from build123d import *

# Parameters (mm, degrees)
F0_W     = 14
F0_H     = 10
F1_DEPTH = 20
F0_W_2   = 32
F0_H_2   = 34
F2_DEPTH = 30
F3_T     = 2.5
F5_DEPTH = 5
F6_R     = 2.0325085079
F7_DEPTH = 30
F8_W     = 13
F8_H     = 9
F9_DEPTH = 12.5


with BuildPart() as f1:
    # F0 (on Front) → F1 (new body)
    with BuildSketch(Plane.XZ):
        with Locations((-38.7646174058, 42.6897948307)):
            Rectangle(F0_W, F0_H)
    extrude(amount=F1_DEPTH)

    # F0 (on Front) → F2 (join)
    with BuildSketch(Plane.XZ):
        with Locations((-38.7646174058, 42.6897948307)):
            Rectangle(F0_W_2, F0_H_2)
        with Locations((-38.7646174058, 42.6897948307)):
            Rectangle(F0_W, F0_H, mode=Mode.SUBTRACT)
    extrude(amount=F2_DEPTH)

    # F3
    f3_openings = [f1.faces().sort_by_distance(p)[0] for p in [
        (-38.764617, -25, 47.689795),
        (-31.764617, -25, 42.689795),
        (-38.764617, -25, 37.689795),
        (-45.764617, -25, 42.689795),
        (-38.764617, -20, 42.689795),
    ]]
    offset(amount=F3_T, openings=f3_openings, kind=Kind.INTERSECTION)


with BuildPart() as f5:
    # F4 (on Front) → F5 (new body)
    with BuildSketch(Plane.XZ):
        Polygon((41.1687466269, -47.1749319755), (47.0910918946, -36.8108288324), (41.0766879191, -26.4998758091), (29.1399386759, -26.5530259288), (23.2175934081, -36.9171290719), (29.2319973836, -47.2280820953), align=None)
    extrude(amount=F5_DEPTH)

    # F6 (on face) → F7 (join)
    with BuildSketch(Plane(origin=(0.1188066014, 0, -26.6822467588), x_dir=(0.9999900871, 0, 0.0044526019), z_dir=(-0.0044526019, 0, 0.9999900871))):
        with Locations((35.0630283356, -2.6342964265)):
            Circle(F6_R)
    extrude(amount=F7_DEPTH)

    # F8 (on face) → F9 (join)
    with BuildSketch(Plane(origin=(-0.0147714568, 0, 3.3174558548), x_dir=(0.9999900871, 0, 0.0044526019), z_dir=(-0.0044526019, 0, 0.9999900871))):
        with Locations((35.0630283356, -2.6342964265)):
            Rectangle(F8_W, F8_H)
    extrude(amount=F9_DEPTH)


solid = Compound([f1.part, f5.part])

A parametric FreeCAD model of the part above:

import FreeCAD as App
import Part
import Sketcher
from FreeCAD import Vector
Q = App.Units.Quantity


def faces_at(feature, points):
    """Names of the faces that lie closest to the given points."""
    faces = feature.Shape.Faces
    near = lambda p: min(range(len(faces)), key=lambda i: faces[i].distToShape(Part.Vertex(*p))[0])
    return sorted({f"Face{near(p) + 1}" for p in points})

doc = App.newDocument("Part")
params = doc.addObject("Spreadsheet::Sheet", "Params")
for row, (alias, value) in enumerate([
    ("sketch1_width", "14 mm"),
    ("sketch1_height", "10 mm"),
    ("pad1_length", "20 mm"),
    ("sketch2_width", "32 mm"),
    ("sketch2_width2", "14 mm"),
    ("sketch2_height", "34 mm"),
    ("sketch2_height2", "10 mm"),
    ("pad2_length", "30 mm"),
    ("thickness_wall", "2.5 mm"),
    ("pad3_length", "5 mm"),
    ("pad4_length", "30 mm"),
    ("sketch5_width", "13 mm"),
    ("sketch5_height", "9 mm"),
    ("pad5_length", "12.5 mm"),
], start=1):
    params.set(f"A{row}", alias)
    params.set(f"B{row}", "=" + value)
    params.setAlias(f"B{row}", alias)

body = doc.addObject("PartDesign::Body", "Body")

sketch1 = body.newObject("Sketcher::SketchObject", "Sketch")
sketch1.AttachmentSupport = (doc.getObject("XZ_Plane"), [""])
sketch1.MapMode = "FlatFace"
sketch1.addGeometry(Part.LineSegment(Vector(-45.764617, 47.689795, 0), Vector(-45.764617, 37.689795, 0)), False)
sketch1.addGeometry(Part.LineSegment(Vector(-45.764617, 37.689795, 0), Vector(-31.764617, 37.689795, 0)), False)
sketch1.addGeometry(Part.LineSegment(Vector(-31.764617, 37.689795, 0), Vector(-31.764617, 47.689795, 0)), False)
sketch1.addGeometry(Part.LineSegment(Vector(-31.764617, 47.689795, 0), Vector(-45.764617, 47.689795, 0)), False)
sketch1.addConstraint(Sketcher.Constraint("Coincident", 0, 2, 1, 1))
sketch1.addConstraint(Sketcher.Constraint("Coincident", 1, 2, 2, 1))
sketch1.addConstraint(Sketcher.Constraint("Coincident", 2, 2, 3, 1))
sketch1.addConstraint(Sketcher.Constraint("Coincident", 3, 2, 0, 1))
sketch1.addConstraint(Sketcher.Constraint("Vertical", 0))
sketch1.addConstraint(Sketcher.Constraint("Horizontal", 1))
sketch1.addConstraint(Sketcher.Constraint("Vertical", 2))
sketch1.addConstraint(Sketcher.Constraint("Horizontal", 3))
sketch1.addConstraint(Sketcher.Constraint("DistanceX", 1, 1, 1, 2, Q("14 mm")))
sketch1.addConstraint(Sketcher.Constraint("DistanceY", 0, 2, 0, 1, Q("10 mm")))
sketch1.addConstraint(Sketcher.Constraint("DistanceX", 0, 2, -1, 1, Q("45.764617 mm")))
sketch1.addConstraint(Sketcher.Constraint("DistanceY", -1, 1, 0, 2, Q("37.689795 mm")))
sketch1.setExpression("Constraints[8]", "Params.sketch1_width")
sketch1.setExpression("Constraints[9]", "Params.sketch1_height")
pad1 = body.newObject("PartDesign::Pad", "Pad")
pad1.Profile = sketch1
pad1.setExpression("Length", "Params.pad1_length")

sketch2 = body.newObject("Sketcher::SketchObject", "Sketch001")
sketch2.AttachmentSupport = (doc.getObject("XZ_Plane"), [""])
sketch2.MapMode = "FlatFace"
sketch2.addGeometry(Part.LineSegment(Vector(-54.764617, 59.689795, 0), Vector(-54.764617, 25.689795, 0)), False)
sketch2.addGeometry(Part.LineSegment(Vector(-54.764617, 25.689795, 0), Vector(-22.764617, 25.689795, 0)), False)
sketch2.addGeometry(Part.LineSegment(Vector(-22.764617, 25.689795, 0), Vector(-22.764617, 59.689795, 0)), False)
sketch2.addGeometry(Part.LineSegment(Vector(-22.764617, 59.689795, 0), Vector(-54.764617, 59.689795, 0)), False)
sketch2.addGeometry(Part.LineSegment(Vector(-31.764617, 37.689795, 0), Vector(-45.764617, 37.689795, 0)), False)
sketch2.addGeometry(Part.LineSegment(Vector(-45.764617, 37.689795, 0), Vector(-45.764617, 47.689795, 0)), False)
sketch2.addGeometry(Part.LineSegment(Vector(-45.764617, 47.689795, 0), Vector(-31.764617, 47.689795, 0)), False)
sketch2.addGeometry(Part.LineSegment(Vector(-31.764617, 47.689795, 0), Vector(-31.764617, 37.689795, 0)), False)
sketch2.addConstraint(Sketcher.Constraint("Coincident", 0, 2, 1, 1))
sketch2.addConstraint(Sketcher.Constraint("Coincident", 1, 2, 2, 1))
sketch2.addConstraint(Sketcher.Constraint("Coincident", 2, 2, 3, 1))
sketch2.addConstraint(Sketcher.Constraint("Coincident", 3, 2, 0, 1))
sketch2.addConstraint(Sketcher.Constraint("Coincident", 4, 2, 5, 1))
sketch2.addConstraint(Sketcher.Constraint("Coincident", 5, 2, 6, 1))
sketch2.addConstraint(Sketcher.Constraint("Coincident", 6, 2, 7, 1))
sketch2.addConstraint(Sketcher.Constraint("Coincident", 7, 2, 4, 1))
sketch2.addConstraint(Sketcher.Constraint("Vertical", 0))
sketch2.addConstraint(Sketcher.Constraint("Horizontal", 1))
sketch2.addConstraint(Sketcher.Constraint("Vertical", 2))
sketch2.addConstraint(Sketcher.Constraint("Horizontal", 3))
sketch2.addConstraint(Sketcher.Constraint("Horizontal", 4))
sketch2.addConstraint(Sketcher.Constraint("Vertical", 5))
sketch2.addConstraint(Sketcher.Constraint("Horizontal", 6))
sketch2.addConstraint(Sketcher.Constraint("Vertical", 7))
sketch2.addConstraint(Sketcher.Constraint("DistanceX", 1, 1, 1, 2, Q("32 mm")))
sketch2.addConstraint(Sketcher.Constraint("DistanceX", 4, 2, 4, 1, Q("14 mm")))
sketch2.addConstraint(Sketcher.Constraint("DistanceY", 0, 2, 0, 1, Q("34 mm")))
sketch2.addConstraint(Sketcher.Constraint("DistanceY", 5, 1, 5, 2, Q("10 mm")))
sketch2.addConstraint(Sketcher.Constraint("DistanceX", 0, 2, 4, 2, Q("9 mm")))
sketch2.addConstraint(Sketcher.Constraint("DistanceY", 0, 2, 4, 2, Q("12 mm")))
sketch2.addConstraint(Sketcher.Constraint("DistanceX", 0, 2, -1, 1, Q("54.764617 mm")))
sketch2.addConstraint(Sketcher.Constraint("DistanceY", -1, 1, 0, 2, Q("25.689795 mm")))
sketch2.setExpression("Constraints[16]", "Params.sketch2_width")
sketch2.setExpression("Constraints[17]", "Params.sketch2_width2")
sketch2.setExpression("Constraints[18]", "Params.sketch2_height")
sketch2.setExpression("Constraints[19]", "Params.sketch2_height2")
pad2 = body.newObject("PartDesign::Pad", "Pad001")
pad2.Profile = sketch2
pad2.setExpression("Length", "Params.pad2_length")
doc.recompute()

thickness = body.newObject("PartDesign::Thickness", "Thickness")
thickness.Base = (pad2, faces_at(pad2, [
    (-38.765, -25, 47.69),
    (-31.765, -25, 42.69),
    (-38.765, -25, 37.69),
    (-45.765, -25, 42.69),
    (-38.765, -20, 42.69),
]))
thickness.setExpression("Value", "Params.thickness_wall")
thickness.Reversed = False
thickness.Join = "Intersection"
body2 = doc.addObject("PartDesign::Body", "Body001")

sketch3 = body2.newObject("Sketcher::SketchObject", "Sketch002")
sketch3.AttachmentSupport = (doc.getObject("XZ_Plane001"), [""])
sketch3.MapMode = "FlatFace"
sketch3.addGeometry(Part.LineSegment(Vector(41.168747, -47.174932, 0), Vector(47.091092, -36.810829, 0)), False)
sketch3.addGeometry(Part.LineSegment(Vector(47.091092, -36.810829, 0), Vector(41.076688, -26.499876, 0)), False)
sketch3.addGeometry(Part.LineSegment(Vector(41.076688, -26.499876, 0), Vector(29.139939, -26.553026, 0)), False)
sketch3.addGeometry(Part.LineSegment(Vector(29.139939, -26.553026, 0), Vector(23.217593, -36.917129, 0)), False)
sketch3.addGeometry(Part.LineSegment(Vector(23.217593, -36.917129, 0), Vector(29.231997, -47.228082, 0)), False)
sketch3.addGeometry(Part.LineSegment(Vector(29.231997, -47.228082, 0), Vector(41.168747, -47.174932, 0)), False)
sketch3.addConstraint(Sketcher.Constraint("Coincident", 0, 2, 1, 1))
sketch3.addConstraint(Sketcher.Constraint("Coincident", 1, 2, 2, 1))
sketch3.addConstraint(Sketcher.Constraint("Coincident", 2, 2, 3, 1))
sketch3.addConstraint(Sketcher.Constraint("Coincident", 3, 2, 4, 1))
sketch3.addConstraint(Sketcher.Constraint("Coincident", 4, 2, 5, 1))
sketch3.addConstraint(Sketcher.Constraint("Coincident", 5, 2, 0, 1))
sketch3.addConstraint(Sketcher.Constraint("Parallel", 0, 3))
sketch3.addConstraint(Sketcher.Constraint("Parallel", 1, 4))
sketch3.addConstraint(Sketcher.Constraint("Parallel", 2, 5))
sketch3.addConstraint(Sketcher.Constraint("Equal", 0, 1))
sketch3.addConstraint(Sketcher.Constraint("Equal", 1, 2))
sketch3.addConstraint(Sketcher.Constraint("Equal", 2, 3))
sketch3.addConstraint(Sketcher.Constraint("DistanceX", 3, 2, 0, 2, Q("23.873498 mm")))
sketch3.addConstraint(Sketcher.Constraint("DistanceY", 3, 2, 0, 2, Q("0.1063 mm")))
sketch3.addConstraint(Sketcher.Constraint("DistanceX", -1, 1, 0, 2, Q("47.091092 mm")))
sketch3.addConstraint(Sketcher.Constraint("DistanceY", 0, 2, -1, 1, Q("36.810829 mm")))
sketch3.addConstraint(Sketcher.Constraint("DistanceX", -1, 1, 2, 2, Q("29.139939 mm")))
sketch3.addConstraint(Sketcher.Constraint("DistanceY", 5, 2, -1, 1, Q("47.174932 mm")))
pad3 = body2.newObject("PartDesign::Pad", "Pad002")
pad3.Profile = sketch3
pad3.setExpression("Length", "Params.pad3_length")

sketch4 = body2.newObject("Sketcher::SketchObject", "Sketch003")
sketch4.Placement = App.Placement(Vector(0.118807, 0, -26.682247), App.Rotation(Vector(0.999990087, 0, 0.004452602), Vector(0, 1, 0), Vector(-0.004452602, 0, 0.999990087), "ZXY"))
sketch4.addGeometry(Part.Circle(Vector(35.063028, -2.634296, 0), Vector(0, 0, 1), 2.032509), False)
sketch4.addConstraint(Sketcher.Constraint("Diameter", 0, Q("4.065017 mm")))
sketch4.addConstraint(Sketcher.Constraint("DistanceX", -1, 1, 0, 3, Q("35.063028 mm")))
sketch4.addConstraint(Sketcher.Constraint("DistanceY", 0, 3, -1, 1, Q("2.634296 mm")))
pad4 = body2.newObject("PartDesign::Pad", "Pad003")
pad4.Profile = sketch4
pad4.setExpression("Length", "Params.pad4_length")

sketch5 = body2.newObject("Sketcher::SketchObject", "Sketch004")
sketch5.Placement = App.Placement(Vector(-0.014771, 0, 3.317456), App.Rotation(Vector(0.999990087, 0, 0.004452602), Vector(0, 1, 0), Vector(-0.004452602, 0, 0.999990087), "ZXY"))
sketch5.addGeometry(Part.LineSegment(Vector(28.563028, 1.865704, 0), Vector(28.563028, -7.134296, 0)), False)
sketch5.addGeometry(Part.LineSegment(Vector(28.563028, -7.134296, 0), Vector(41.563028, -7.134296, 0)), False)
sketch5.addGeometry(Part.LineSegment(Vector(41.563028, -7.134296, 0), Vector(41.563028, 1.865704, 0)), False)
sketch5.addGeometry(Part.LineSegment(Vector(41.563028, 1.865704, 0), Vector(28.563028, 1.865704, 0)), False)
sketch5.addConstraint(Sketcher.Constraint("Coincident", 0, 2, 1, 1))
sketch5.addConstraint(Sketcher.Constraint("Coincident", 1, 2, 2, 1))
sketch5.addConstraint(Sketcher.Constraint("Coincident", 2, 2, 3, 1))
sketch5.addConstraint(Sketcher.Constraint("Coincident", 3, 2, 0, 1))
sketch5.addConstraint(Sketcher.Constraint("Vertical", 0))
sketch5.addConstraint(Sketcher.Constraint("Horizontal", 1))
sketch5.addConstraint(Sketcher.Constraint("Vertical", 2))
sketch5.addConstraint(Sketcher.Constraint("Horizontal", 3))
sketch5.addConstraint(Sketcher.Constraint("DistanceX", 1, 1, 1, 2, Q("13 mm")))
sketch5.addConstraint(Sketcher.Constraint("DistanceY", 0, 2, 0, 1, Q("9 mm")))
sketch5.addConstraint(Sketcher.Constraint("DistanceX", -1, 1, 0, 2, Q("28.563028 mm")))
sketch5.addConstraint(Sketcher.Constraint("DistanceY", 0, 2, -1, 1, Q("7.134296 mm")))
sketch5.setExpression("Constraints[8]", "Params.sketch5_width")
sketch5.setExpression("Constraints[9]", "Params.sketch5_height")
pad5 = body2.newObject("PartDesign::Pad", "Pad004")
pad5.Profile = sketch5
pad5.setExpression("Length", "Params.pad5_length")

doc.recompute()
